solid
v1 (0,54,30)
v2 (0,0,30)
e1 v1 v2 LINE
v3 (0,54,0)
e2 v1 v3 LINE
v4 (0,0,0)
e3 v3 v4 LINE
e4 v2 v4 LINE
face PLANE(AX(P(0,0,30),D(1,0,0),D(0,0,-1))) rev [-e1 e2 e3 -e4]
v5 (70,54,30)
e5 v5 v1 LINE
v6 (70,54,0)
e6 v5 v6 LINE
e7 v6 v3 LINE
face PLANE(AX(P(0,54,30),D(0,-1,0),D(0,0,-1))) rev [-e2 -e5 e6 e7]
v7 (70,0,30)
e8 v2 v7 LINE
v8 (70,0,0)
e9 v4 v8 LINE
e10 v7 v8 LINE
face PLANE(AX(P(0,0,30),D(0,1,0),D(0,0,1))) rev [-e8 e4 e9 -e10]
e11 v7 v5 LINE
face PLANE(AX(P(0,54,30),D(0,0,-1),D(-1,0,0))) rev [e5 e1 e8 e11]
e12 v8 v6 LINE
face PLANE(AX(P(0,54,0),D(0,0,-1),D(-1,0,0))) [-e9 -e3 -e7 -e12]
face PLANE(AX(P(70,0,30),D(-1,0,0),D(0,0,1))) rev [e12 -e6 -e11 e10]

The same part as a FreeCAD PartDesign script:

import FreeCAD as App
import Part
import Sketcher
from FreeCAD import Vector


def add_polygon(sketch, points):
    """Adds a closed chain of lines whose ends are joined by coincident constraints."""
    first, n = sketch.GeometryCount, len(points)
    for a, b in zip(points, points[1:] + points[:1]):
        sketch.addGeometry(Part.LineSegment(App.Vector(*a, 0), App.Vector(*b, 0)), False)
    for i in range(n):
        sketch.addConstraint(Sketcher.Constraint("Coincident", first + i, 2, first + (i + 1) % n, 1))

doc = App.newDocument("Part")
body = doc.addObject("PartDesign::Body", "Body")

sketch1 = doc.addObject("Sketcher::SketchObject", "Sketch")
body.addObject(sketch1)
sketch1.AttachmentSupport = (doc.XY_Plane, [""])
sketch1.MapMode = "FlatFace"
add_polygon(sketch1, [(0, 54), (0, 0), (70, 0), (70, 54)])
sketch1.addConstraint(Sketcher.Constraint("Vertical", 0))
sketch1.addConstraint(Sketcher.Constraint("Horizontal", 1))
sketch1.addConstraint(Sketcher.Constraint("Vertical", 2))
sketch1.addConstraint(Sketcher.Constraint("Horizontal", 3))
sketch1.addConstraint(Sketcher.Constraint("Coincident", 0, 2, -1, 1))
sketch1.addConstraint(Sketcher.Constraint("DistanceX", 1, 1, 1, 2, 70.0))
sketch1.addConstraint(Sketcher.Constraint("DistanceY", 0, 2, 0, 1, 54.0))
pad1 = doc.addObject("PartDesign::Pad", "Pad")
body.addObject(pad1)
pad1.Profile = sketch1
pad1.Length = 30

doc.recompute()
